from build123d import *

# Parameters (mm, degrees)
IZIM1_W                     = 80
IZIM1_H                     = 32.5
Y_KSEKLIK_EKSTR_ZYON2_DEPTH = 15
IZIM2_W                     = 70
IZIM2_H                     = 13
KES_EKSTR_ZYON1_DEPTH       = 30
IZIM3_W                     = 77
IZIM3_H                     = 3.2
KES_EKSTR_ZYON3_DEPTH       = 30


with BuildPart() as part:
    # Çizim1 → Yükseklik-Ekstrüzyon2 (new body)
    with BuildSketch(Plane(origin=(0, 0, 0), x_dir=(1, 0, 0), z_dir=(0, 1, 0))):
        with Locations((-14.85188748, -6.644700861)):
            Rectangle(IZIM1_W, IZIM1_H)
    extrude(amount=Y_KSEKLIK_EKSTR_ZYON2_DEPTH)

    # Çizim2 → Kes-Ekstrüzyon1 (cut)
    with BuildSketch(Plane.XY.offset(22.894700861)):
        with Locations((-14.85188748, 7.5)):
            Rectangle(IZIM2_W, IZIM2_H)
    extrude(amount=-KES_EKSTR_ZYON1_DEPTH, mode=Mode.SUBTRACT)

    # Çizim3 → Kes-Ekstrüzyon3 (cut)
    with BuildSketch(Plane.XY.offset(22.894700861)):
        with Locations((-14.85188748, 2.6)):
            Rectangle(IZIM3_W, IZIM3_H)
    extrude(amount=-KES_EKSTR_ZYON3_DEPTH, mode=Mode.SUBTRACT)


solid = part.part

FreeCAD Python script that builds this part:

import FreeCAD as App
import Part
import Sketcher
from FreeCAD import Vector
Q = App.Units.Quantity

doc = App.newDocument("Part")
body = doc.addObject("PartDesign::Body", "Body")

# Sketch on XZ plane
sketch1 = body.newObject("Sketcher::SketchObject", "Sketch")
sketch1.AttachmentSupport = (doc.getObject("XZ_Plane"), [""])
sketch1.MapMode = "FlatFace"
sketch1.addGeometry(Part.LineSegment(Vector(-55, -10, 0), Vector(-55, 23, 0)), False)
sketch1.addGeometry(Part.LineSegment(Vector(-55, 23, 0), Vector(25, 23, 0)), False)
sketch1.addGeometry(Part.LineSegment(Vector(25, 23, 0), Vector(25, -10, 0)), False)
sketch1.addGeometry(Part.LineSegment(Vector(25, -10, 0), Vector(-55, -10, 0)), False)
sketch1.addConstraint(Sketcher.Constraint("Coincident", 0, 2, 1, 1))
sketch1.addConstraint(Sketcher.Constraint("Coincident", 1, 2, 2, 1))
sketch1.addConstraint(Sketcher.Constraint("Coincident", 2, 2, 3, 1))
sketch1.addConstraint(Sketcher.Constraint("Coincident", 3, 2, 0, 1))
sketch1.addConstraint(Sketcher.Constraint("Vertical", 0))
sketch1.addConstraint(Sketcher.Constraint("Horizontal", 1))
sketch1.addConstraint(Sketcher.Constraint("Vertical", 2))
sketch1.addConstraint(Sketcher.Constraint("Horizontal", 3))
sketch1.addConstraint(Sketcher.Constraint("DistanceX", 1, 1, 1, 2, Q("80 mm")))
sketch1.addConstraint(Sketcher.Constraint("DistanceY", 0, 1, 0, 2, Q("32.5 mm")))
sketch1.addConstraint(Sketcher.Constraint("DistanceY", -1, 1, 0, 2, Q("22.894701 mm")))
sketch1.addConstraint(Sketcher.Constraint("DistanceX", 0, 2, -1, 1, Q("54.851887 mm")))
pad1 = body.newObject("PartDesign::Pad", "Pad")
pad1.Profile = sketch1
pad1.Length = 15
pad1.Reversed = True

# Sketch on XY plane
sketch2 = body.newObject("Sketcher::SketchObject", "Sketch001")
sketch2.AttachmentSupport = (doc.getObject("XY_Plane"), [""])
sketch2.MapMode = "FlatFace"
sketch2.AttachmentOffset = App.Placement(Vector(0, 0, 22.894701), App.Rotation())
sketch2.addGeometry(Part.LineSegment(Vector(-50, 14, 0), Vector(-50, 1, 0)), False)
sketch2.addGeometry(Part.LineSegment(Vector(-50, 1, 0), Vector(20, 1, 0)), False)
sketch2.addGeometry(Part.LineSegment(Vector(20, 1, 0), Vector(20, 14, 0)), False)
sketch2.addGeometry(Part.LineSegment(Vector(20, 14, 0), Vector(-50, 14, 0)), False)
sketch2.addConstraint(Sketcher.Constraint("Coincident", 0, 2, 1, 1))
sketch2.addConstraint(Sketcher.Constraint("Coincident", 1, 2, 2, 1))
sketch2.addConstraint(Sketcher.Constraint("Coincident", 2, 2, 3, 1))
sketch2.addConstraint(Sketcher.Constraint("Coincident", 3, 2, 0, 1))
sketch2.addConstraint(Sketcher.Constraint("Vertical", 0))
sketch2.addConstraint(Sketcher.Constraint("Horizontal", 1))
sketch2.addConstraint(Sketcher.Constraint("Vertical", 2))
sketch2.addConstraint(Sketcher.Constraint("Horizontal", 3))
sketch2.addConstraint(Sketcher.Constraint("DistanceX", 1, 1, 1, 2, Q("70 mm")))
sketch2.addConstraint(Sketcher.Constraint("DistanceY", 0, 2, 0, 1, Q("13 mm")))
sketch2.addConstraint(Sketcher.Constraint("DistanceY", -1, 1, 0, 2, Q("1 mm")))
sketch2.addConstraint(Sketcher.Constraint("DistanceX", 0, 2, -1, 1, Q("49.851887 mm")))
pocket1 = body.newObject("PartDesign::Pocket", "Pocket")
pocket1.Profile = sketch2
pocket1.Length = 30

# Sketch on XY plane
sketch3 = body.newObject("Sketcher::SketchObject", "Sketch002")
sketch3.AttachmentSupport = (doc.getObject("XY_Plane"), [""])
sketch3.MapMode = "FlatFace"
sketch3.AttachmentOffset = App.Placement(Vector(0, 0, 22.894701), App.Rotation())
sketch3.addGeometry(Part.LineSegment(Vector(-53.4, 4.2, 0), Vector(-53.4, 1, 0)), False)
sketch3.addGeometry(Part.LineSegment(Vector(-53.4, 1, 0), Vector(23.6, 1, 0)), False)
sketch3.addGeometry(Part.LineSegment(Vector(23.6, 1, 0), Vector(23.6, 4.2, 0)), False)
sketch3.addGeometry(Part.LineSegment(Vector(23.6, 4.2, 0), Vector(-53.4, 4.2, 0)), False)
sketch3.addConstraint(Sketcher.Constraint("Coincident", 0, 2, 1, 1))
sketch3.addConstraint(Sketcher.Constraint("Coincident", 1, 2, 2, 1))
sketch3.addConstraint(Sketcher.Constraint("Coincident", 2, 2, 3, 1))
sketch3.addConstraint(Sketcher.Constraint("Coincident", 3, 2, 0, 1))
sketch3.addConstraint(Sketcher.Constraint("Vertical", 0))
sketch3.addConstraint(Sketcher.Constraint("Horizontal", 1))
sketch3.addConstraint(Sketcher.Constraint("Vertical", 2))
sketch3.addConstraint(Sketcher.Constraint("Horizontal", 3))
sketch3.addConstraint(Sketcher.Constraint("DistanceX", 1, 1, 1, 2, Q("77 mm")))
sketch3.addConstraint(Sketcher.Constraint("DistanceY", 0, 2, 0, 1, Q("3.2 mm")))
sketch3.addConstraint(Sketcher.Constraint("DistanceY", -1, 1, 0, 2, Q("1 mm")))
sketch3.addConstraint(Sketcher.Constraint("DistanceX", 0, 2, -1, 1, Q("53.351887 mm")))
pocket2 = body.newObject("PartDesign::Pocket", "Pocket001")
pocket2.Profile = sketch3
pocket2.Length = 30

doc.recompute()
